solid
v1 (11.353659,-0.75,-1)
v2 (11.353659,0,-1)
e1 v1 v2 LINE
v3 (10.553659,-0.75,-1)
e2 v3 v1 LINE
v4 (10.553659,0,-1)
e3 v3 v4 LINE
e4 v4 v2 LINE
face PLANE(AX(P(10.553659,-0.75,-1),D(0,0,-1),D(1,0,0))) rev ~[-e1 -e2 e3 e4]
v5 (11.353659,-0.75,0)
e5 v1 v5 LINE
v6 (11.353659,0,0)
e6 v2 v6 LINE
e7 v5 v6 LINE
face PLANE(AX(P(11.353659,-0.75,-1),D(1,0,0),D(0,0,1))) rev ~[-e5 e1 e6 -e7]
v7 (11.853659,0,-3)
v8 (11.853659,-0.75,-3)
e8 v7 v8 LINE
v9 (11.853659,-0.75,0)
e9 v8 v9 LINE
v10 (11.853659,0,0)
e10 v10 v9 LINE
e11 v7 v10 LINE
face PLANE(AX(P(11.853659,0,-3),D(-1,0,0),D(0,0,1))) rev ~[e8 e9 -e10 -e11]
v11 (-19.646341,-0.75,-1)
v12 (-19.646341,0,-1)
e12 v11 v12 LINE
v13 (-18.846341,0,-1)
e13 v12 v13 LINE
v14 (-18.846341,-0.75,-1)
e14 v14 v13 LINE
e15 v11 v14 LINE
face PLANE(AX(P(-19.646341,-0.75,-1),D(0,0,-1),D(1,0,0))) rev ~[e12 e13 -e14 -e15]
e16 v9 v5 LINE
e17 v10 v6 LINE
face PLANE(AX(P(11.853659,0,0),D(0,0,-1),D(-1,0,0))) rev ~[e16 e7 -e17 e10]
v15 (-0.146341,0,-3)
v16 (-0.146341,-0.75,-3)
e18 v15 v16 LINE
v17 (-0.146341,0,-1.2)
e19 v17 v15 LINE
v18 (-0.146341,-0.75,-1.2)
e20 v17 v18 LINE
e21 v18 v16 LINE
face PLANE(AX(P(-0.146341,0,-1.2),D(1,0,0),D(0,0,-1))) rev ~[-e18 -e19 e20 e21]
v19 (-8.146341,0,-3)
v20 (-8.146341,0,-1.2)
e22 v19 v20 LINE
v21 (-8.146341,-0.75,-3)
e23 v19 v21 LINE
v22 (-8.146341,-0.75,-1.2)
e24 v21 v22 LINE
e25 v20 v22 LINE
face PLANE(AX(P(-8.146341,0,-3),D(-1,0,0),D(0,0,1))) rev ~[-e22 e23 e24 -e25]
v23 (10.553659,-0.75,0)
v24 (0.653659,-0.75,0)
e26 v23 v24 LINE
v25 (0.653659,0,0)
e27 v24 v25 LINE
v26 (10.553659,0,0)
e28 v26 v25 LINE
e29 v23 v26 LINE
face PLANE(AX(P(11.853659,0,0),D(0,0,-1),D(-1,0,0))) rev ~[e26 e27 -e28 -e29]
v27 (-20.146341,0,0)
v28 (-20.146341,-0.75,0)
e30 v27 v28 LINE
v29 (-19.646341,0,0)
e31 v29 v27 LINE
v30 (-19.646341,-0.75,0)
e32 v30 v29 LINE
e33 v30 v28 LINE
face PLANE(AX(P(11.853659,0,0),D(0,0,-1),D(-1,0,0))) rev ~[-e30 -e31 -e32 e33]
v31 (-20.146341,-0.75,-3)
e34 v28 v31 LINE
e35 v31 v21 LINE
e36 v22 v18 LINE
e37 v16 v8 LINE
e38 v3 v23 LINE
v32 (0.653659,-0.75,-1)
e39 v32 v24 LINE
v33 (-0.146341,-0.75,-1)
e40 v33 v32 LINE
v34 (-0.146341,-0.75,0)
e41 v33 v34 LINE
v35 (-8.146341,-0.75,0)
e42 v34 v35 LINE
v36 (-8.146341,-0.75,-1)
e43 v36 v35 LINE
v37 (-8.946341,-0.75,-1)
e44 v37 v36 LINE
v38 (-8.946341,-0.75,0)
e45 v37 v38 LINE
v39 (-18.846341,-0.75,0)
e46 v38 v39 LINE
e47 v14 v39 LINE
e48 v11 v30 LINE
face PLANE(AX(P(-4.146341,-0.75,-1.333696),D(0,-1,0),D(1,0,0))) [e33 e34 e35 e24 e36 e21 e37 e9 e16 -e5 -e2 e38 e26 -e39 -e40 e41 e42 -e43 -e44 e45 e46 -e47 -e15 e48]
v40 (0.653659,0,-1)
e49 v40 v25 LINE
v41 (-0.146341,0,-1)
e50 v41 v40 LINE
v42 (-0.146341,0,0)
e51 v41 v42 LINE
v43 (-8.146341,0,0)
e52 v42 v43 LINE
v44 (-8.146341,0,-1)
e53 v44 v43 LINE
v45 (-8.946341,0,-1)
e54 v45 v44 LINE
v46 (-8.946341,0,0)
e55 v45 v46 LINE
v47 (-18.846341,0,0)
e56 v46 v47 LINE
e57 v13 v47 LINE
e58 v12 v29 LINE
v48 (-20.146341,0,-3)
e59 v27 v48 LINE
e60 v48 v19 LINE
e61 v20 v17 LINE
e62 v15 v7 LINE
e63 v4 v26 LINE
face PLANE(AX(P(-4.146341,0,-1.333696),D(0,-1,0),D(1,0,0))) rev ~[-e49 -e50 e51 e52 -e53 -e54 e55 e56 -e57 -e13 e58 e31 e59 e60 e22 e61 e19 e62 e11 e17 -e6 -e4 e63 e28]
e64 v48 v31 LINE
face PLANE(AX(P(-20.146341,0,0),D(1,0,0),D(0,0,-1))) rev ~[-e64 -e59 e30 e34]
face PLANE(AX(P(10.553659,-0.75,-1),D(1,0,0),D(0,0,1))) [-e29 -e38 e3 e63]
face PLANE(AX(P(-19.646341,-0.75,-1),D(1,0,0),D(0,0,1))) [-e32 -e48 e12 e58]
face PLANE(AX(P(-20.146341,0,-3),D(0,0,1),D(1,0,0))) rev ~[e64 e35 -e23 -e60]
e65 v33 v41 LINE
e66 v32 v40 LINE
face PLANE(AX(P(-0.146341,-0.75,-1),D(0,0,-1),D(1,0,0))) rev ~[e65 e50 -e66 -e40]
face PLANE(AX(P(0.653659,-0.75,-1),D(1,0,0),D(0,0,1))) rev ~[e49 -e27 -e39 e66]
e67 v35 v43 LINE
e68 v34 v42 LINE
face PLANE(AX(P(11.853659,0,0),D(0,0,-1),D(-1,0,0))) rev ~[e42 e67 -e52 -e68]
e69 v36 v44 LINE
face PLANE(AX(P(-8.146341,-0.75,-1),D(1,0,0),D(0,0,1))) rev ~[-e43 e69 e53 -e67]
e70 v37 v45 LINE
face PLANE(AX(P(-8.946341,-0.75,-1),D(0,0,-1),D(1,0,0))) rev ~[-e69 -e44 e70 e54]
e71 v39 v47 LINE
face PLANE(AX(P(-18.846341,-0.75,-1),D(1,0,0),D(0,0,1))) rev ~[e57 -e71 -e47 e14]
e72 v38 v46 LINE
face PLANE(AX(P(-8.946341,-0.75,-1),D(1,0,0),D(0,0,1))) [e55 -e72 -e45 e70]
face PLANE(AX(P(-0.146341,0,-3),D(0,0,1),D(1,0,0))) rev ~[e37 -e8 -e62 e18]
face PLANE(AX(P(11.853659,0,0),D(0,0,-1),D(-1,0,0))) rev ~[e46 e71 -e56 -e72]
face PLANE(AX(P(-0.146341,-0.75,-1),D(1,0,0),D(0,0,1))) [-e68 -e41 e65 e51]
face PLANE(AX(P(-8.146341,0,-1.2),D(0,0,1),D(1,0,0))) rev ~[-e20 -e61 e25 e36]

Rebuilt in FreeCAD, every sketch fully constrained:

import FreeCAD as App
import Part
import Sketcher
from FreeCAD import Vector
Q = App.Units.Quantity


def add_polygon(sketch, points):
    """Adds a closed chain of lines whose ends are joined by coincident constraints."""
    first, n = sketch.GeometryCount, len(points)
    for a, b in zip(points, points[1:] + points[:1]):
        sketch.addGeometry(Part.LineSegment(App.Vector(*a, 0), App.Vector(*b, 0)), False)
    for i in range(n):
        sketch.addConstraint(Sketcher.Constraint("Coincident", first + i, 2, first + (i + 1) % n, 1))

doc = App.newDocument("Part")
body = doc.addObject("PartDesign::Body", "Body")

# Sketch on XZ plane
sketch1 = doc.addObject("Sketcher::SketchObject", "Sketch")
body.addObject(sketch1)
sketch1.AttachmentSupport = (doc.XZ_Plane, [""])
sketch1.MapMode = "FlatFace"
add_polygon(sketch1, [(11.9, 0), (-20.1, 0), (-20.1, -3), (-8.1, -3), (-8.1, -1.2), (-0.1, -1.2), (-0.1, -3), (11.9, -3)])  # lines 0-7
sketch1.addConstraint([
    Sketcher.Constraint("Horizontal", 0),
    Sketcher.Constraint("Vertical", 1),
    Sketcher.Constraint("Horizontal", 2),
    Sketcher.Constraint("Vertical", 3),
    Sketcher.Constraint("Horizontal", 4),
    Sketcher.Constraint("Vertical", 5),
    Sketcher.Constraint("Horizontal", 6),
    Sketcher.Constraint("Vertical", 7),
    Sketcher.Constraint("PointOnObject", 0, 2, -1),
    Sketcher.Constraint("Horizontal", 2, 2, 5, 2),
    Sketcher.Constraint("Equal", 2, 6),
    Sketcher.Constraint("DistanceX", 0, 2, 0, 1, Q("32 mm")),
    Sketcher.Constraint("DistanceX", 2, 1, 2, 2, Q("12 mm")),
    Sketcher.Constraint("DistanceY", 1, 2, 1, 1, Q("3 mm")),
    Sketcher.Constraint("DistanceY", 3, 1, 3, 2, Q("1.8 mm")),
    Sketcher.Constraint("DistanceX", 0, 2, -1, 1, Q("20.146341 mm")),
])
pad1 = doc.addObject("PartDesign::Pad", "Pad")
body.addObject(pad1)
pad1.Profile = sketch1
pad1.Length = 0.75

# Sketch on XZ plane
sketch2 = doc.addObject("Sketcher::SketchObject", "Sketch001")
body.addObject(sketch2)
sketch2.AttachmentSupport = (doc.XZ_Plane, [""])
sketch2.MapMode = "FlatFace"
sketch2.AttachmentOffset = App.Placement(Vector(0, 0, 0.75), App.Rotation())
add_polygon(sketch2, [(-19.6, 0), (-19.6, -1), (-18.8, -1), (-18.8, 0)])  # lines 0-3
sketch2.addConstraint([
    Sketcher.Constraint("Vertical", 0),
    Sketcher.Constraint("Horizontal", 1),
    Sketcher.Constraint("Vertical", 2),
    Sketcher.Constraint("Horizontal", 3),
    Sketcher.Constraint("PointOnObject", 2, 2, -1),
    Sketcher.Constraint("DistanceY", 0, 2, 0, 1, Q("1 mm")),
    Sketcher.Constraint("DistanceX", 1, 1, 1, 2, Q("0.8 mm")),
    Sketcher.Constraint("DistanceX", 0, 2, -1, 1, Q("19.646341 mm")),
])
pocket1 = doc.addObject("PartDesign::Pocket", "Pocket")
body.addObject(pocket1)
pocket1.Profile = sketch2
pocket1.Type = "ThroughAll"

# Sketch on XZ plane
sketch3 = doc.addObject("Sketcher::SketchObject", "Sketch002")
body.addObject(sketch3)
sketch3.AttachmentSupport = (doc.XZ_Plane, [""])
sketch3.MapMode = "FlatFace"
sketch3.AttachmentOffset = App.Placement(Vector(0, 0, 0.75), App.Rotation())
add_polygon(sketch3, [(-8.9, 0), (-8.9, -1), (-8.1, -1), (-8.1, 0)])  # lines 0-3
sketch3.addConstraint([
    Sketcher.Constraint("Vertical", 0),
    Sketcher.Constraint("Horizontal", 1),
    Sketcher.Constraint("Vertical", 2),
    Sketcher.Constraint("Horizontal", 3),
    Sketcher.Constraint("PointOnObject", 2, 2, -1),
    Sketcher.Constraint("DistanceY", 0, 2, 0, 1, Q("1 mm")),
    Sketcher.Constraint("DistanceX", 1, 1, 1, 2, Q("0.8 mm")),
    Sketcher.Constraint("DistanceX", 0, 2, -1, 1, Q("8.946341 mm")),
])
pocket2 = doc.addObject("PartDesign::Pocket", "Pocket001")
body.addObject(pocket2)
pocket2.Profile = sketch3
pocket2.Type = "ThroughAll"

# Sketch on XZ plane
sketch4 = doc.addObject("Sketcher::SketchObject", "Sketch003")
body.addObject(sketch4)
sketch4.AttachmentSupport = (doc.XZ_Plane, [""])
sketch4.MapMode = "FlatFace"
sketch4.AttachmentOffset = App.Placement(Vector(0, 0, 0.75), App.Rotation())
add_polygon(sketch4, [(-0.1, 0), (-0.1, -1), (0.7, -1), (0.7, 0)])  # lines 0-3
sketch4.addConstraint([
    Sketcher.Constraint("Vertical", 0),
    Sketcher.Constraint("Horizontal", 1),
    Sketcher.Constraint("Vertical", 2),
    Sketcher.Constraint("Horizontal", 3),
    Sketcher.Constraint("PointOnObject", 2, 2, -1),
    Sketcher.Constraint("DistanceY", 0, 2, 0, 1, Q("1 mm")),
    Sketcher.Constraint("DistanceX", 1, 1, 1, 2, Q("0.8 mm")),
    Sketcher.Constraint("DistanceX", 0, 2, -1, 1, Q("0.146341 mm")),
])
pocket3 = doc.addObject("PartDesign::Pocket", "Pocket002")
body.addObject(pocket3)
pocket3.Profile = sketch4
pocket3.Type = "ThroughAll"

# Sketch on XZ plane
sketch5 = doc.addObject("Sketcher::SketchObject", "Sketch004")
body.addObject(sketch5)
sketch5.AttachmentSupport = (doc.XZ_Plane, [""])
sketch5.MapMode = "FlatFace"
sketch5.AttachmentOffset = App.Placement(Vector(0, 0, 0.75), App.Rotation())
add_polygon(sketch5, [(10.6, 0), (10.6, -1), (11.4, -1), (11.4, 0)])  # lines 0-3
sketch5.addConstraint([
    Sketcher.Constraint("Vertical", 0),
    Sketcher.Constraint("Horizontal", 1),
    Sketcher.Constraint("Vertical", 2),
    Sketcher.Constraint("Horizontal", 3),
    Sketcher.Constraint("PointOnObject", 2, 2, -1),
    Sketcher.Constraint("DistanceY", 0, 2, 0, 1, Q("1 mm")),
    Sketcher.Constraint("DistanceX", 1, 1, 1, 2, Q("0.8 mm")),
    Sketcher.Constraint("DistanceX", -1, 1, 0, 2, Q("10.553659 mm")),
])
pocket4 = doc.addObject("PartDesign::Pocket", "Pocket003")
body.addObject(pocket4)
pocket4.Profile = sketch5
pocket4.Type = "ThroughAll"

doc.recompute()
